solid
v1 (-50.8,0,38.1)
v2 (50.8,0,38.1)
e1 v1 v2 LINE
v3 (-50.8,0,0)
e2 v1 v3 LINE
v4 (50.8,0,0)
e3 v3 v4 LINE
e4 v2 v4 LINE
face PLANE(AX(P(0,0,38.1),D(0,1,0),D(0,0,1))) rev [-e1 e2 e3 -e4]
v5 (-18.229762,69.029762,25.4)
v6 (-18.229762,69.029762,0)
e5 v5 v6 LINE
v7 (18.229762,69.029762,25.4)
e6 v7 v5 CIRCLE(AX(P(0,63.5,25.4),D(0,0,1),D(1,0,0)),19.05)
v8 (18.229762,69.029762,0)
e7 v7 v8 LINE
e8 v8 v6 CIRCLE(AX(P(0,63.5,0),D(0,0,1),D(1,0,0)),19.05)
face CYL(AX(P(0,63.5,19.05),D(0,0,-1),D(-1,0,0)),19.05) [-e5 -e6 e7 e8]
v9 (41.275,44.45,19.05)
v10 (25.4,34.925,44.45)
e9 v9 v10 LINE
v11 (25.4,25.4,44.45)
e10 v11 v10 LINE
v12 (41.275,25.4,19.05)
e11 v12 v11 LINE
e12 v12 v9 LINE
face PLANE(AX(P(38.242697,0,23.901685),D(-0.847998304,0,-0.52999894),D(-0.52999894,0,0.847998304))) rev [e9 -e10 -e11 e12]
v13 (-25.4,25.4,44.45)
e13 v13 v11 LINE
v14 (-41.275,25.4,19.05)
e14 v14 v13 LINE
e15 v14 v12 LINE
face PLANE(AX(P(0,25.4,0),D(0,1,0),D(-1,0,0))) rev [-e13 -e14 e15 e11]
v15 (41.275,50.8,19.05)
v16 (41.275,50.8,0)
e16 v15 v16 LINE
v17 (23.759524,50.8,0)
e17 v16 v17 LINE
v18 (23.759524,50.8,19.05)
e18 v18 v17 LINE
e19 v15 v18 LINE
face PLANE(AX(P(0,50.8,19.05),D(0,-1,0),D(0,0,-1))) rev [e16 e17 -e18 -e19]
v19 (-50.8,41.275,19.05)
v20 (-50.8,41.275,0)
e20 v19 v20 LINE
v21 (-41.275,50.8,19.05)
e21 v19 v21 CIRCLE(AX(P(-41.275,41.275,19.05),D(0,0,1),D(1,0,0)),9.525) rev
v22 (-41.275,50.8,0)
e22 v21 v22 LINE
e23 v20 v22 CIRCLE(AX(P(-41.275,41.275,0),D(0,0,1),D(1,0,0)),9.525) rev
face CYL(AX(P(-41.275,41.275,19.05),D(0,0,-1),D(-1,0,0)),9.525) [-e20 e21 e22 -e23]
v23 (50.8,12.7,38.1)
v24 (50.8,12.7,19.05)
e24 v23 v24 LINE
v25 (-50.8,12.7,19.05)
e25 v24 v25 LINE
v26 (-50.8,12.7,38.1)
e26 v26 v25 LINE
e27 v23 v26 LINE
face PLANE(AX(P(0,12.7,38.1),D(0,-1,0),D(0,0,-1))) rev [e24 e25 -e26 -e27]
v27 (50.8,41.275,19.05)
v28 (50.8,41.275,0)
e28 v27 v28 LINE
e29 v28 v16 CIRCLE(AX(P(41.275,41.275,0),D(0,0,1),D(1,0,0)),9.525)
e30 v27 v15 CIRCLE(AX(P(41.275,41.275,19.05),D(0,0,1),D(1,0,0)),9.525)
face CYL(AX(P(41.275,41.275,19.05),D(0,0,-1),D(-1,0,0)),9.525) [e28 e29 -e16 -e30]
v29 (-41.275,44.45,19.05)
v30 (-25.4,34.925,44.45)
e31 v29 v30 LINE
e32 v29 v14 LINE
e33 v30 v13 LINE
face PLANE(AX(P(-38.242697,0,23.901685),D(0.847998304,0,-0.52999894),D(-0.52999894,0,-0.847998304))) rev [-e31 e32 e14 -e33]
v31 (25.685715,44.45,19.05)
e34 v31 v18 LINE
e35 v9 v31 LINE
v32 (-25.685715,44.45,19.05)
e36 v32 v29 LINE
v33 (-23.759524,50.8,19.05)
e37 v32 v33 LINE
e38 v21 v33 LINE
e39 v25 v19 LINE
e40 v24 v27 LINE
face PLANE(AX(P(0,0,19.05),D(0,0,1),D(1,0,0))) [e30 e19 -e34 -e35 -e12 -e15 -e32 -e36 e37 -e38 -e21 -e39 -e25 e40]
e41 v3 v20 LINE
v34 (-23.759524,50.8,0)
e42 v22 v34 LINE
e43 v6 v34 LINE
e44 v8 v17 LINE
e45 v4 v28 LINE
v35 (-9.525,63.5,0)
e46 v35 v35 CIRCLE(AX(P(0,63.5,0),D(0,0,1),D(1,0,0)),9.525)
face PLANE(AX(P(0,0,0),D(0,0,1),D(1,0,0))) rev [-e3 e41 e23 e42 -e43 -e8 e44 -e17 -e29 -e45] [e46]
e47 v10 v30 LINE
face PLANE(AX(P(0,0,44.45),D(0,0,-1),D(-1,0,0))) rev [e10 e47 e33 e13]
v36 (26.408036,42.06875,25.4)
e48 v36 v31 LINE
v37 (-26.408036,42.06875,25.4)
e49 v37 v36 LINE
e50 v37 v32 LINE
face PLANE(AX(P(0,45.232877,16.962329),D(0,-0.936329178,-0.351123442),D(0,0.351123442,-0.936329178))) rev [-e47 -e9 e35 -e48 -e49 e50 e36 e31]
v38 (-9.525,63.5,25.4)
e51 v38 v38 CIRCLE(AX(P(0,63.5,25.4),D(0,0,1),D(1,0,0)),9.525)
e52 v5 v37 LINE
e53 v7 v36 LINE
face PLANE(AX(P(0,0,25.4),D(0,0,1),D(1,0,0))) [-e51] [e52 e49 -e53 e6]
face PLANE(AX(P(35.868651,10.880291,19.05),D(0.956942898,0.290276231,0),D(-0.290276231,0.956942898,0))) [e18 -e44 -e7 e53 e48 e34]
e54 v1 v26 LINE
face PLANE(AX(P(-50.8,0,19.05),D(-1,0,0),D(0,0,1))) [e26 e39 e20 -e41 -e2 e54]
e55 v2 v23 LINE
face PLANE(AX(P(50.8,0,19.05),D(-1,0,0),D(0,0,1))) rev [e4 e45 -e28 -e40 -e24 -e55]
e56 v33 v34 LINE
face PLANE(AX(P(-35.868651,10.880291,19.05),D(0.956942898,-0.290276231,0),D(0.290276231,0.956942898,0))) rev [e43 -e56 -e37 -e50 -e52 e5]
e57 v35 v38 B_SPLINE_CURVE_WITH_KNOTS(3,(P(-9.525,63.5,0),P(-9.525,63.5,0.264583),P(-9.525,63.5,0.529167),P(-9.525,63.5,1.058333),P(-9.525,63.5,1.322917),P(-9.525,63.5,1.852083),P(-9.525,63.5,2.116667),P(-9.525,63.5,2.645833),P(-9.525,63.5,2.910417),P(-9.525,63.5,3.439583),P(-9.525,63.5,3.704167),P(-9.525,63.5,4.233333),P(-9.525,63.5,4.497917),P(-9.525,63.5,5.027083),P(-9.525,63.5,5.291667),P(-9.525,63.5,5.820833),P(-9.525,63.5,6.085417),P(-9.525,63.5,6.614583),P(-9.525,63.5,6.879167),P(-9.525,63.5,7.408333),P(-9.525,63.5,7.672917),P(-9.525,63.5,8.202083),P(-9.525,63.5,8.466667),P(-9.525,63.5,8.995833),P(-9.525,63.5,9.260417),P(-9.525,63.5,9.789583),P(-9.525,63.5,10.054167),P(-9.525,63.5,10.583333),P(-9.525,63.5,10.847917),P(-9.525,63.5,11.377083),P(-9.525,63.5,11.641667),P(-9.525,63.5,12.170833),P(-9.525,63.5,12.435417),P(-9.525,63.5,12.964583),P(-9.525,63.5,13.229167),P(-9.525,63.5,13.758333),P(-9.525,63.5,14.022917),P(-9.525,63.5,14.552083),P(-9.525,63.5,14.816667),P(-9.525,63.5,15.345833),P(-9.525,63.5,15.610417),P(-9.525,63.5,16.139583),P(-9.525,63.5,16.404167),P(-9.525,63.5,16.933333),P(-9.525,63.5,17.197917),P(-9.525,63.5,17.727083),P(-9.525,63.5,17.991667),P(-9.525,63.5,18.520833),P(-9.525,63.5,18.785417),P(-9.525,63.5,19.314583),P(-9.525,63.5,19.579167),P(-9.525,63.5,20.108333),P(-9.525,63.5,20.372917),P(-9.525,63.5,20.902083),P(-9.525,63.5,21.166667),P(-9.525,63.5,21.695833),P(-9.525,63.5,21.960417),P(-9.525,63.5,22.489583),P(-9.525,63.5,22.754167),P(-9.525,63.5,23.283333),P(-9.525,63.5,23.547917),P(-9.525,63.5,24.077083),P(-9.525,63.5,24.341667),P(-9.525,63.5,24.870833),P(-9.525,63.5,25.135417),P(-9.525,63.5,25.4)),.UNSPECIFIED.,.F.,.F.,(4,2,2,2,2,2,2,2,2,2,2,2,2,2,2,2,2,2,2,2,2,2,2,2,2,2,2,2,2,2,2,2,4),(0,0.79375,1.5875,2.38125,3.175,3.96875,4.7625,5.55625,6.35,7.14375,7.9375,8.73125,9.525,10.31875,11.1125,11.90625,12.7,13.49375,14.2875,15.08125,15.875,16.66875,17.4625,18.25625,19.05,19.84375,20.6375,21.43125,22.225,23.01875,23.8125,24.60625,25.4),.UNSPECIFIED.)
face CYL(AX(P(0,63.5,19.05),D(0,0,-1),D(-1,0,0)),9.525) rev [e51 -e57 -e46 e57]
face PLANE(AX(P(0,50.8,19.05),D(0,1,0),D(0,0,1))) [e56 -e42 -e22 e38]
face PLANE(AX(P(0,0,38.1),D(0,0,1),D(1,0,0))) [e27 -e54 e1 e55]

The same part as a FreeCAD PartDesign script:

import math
import FreeCAD as App
import Part
import Sketcher
from FreeCAD import Vector
Q = App.Units.Quantity


def add_polygon(sketch, points):
    """Adds a closed chain of lines whose ends are joined by coincident constraints."""
    first, n = sketch.GeometryCount, len(points)
    for a, b in zip(points, points[1:] + points[:1]):
        sketch.addGeometry(Part.LineSegment(App.Vector(*a, 0), App.Vector(*b, 0)), False)
    for i in range(n):
        sketch.addConstraint(Sketcher.Constraint("Coincident", first + i, 2, first + (i + 1) % n, 1))

doc = App.newDocument("Part")
body = doc.addObject("PartDesign::Body", "Body")

# Sketch on XY plane
sketch1 = body.newObject("Sketcher::SketchObject", "Sketch")
sketch1.AttachmentSupport = (doc.getObject("XY_Plane"), [""])
sketch1.MapMode = "FlatFace"
sketch1.addGeometry(Part.ArcOfCircle(Part.Circle(Vector(0, 63.5, 0), Vector(0, 0, 1), 19.05), math.radians(16.874494), math.radians(163.125506)), False)
sketch1.addGeometry(Part.LineSegment(Vector(-18.229762, 69.029762, 0), Vector(-23.759524, 50.8, 0)), False)
sketch1.addGeometry(Part.LineSegment(Vector(-23.759524, 50.8, 0), Vector(-41.275, 50.8, 0)), False)
sketch1.addGeometry(Part.ArcOfCircle(Part.Circle(Vector(-41.275, 41.275, 0), Vector(0, 0, 1), 9.525), math.radians(90), math.radians(180)), False)
sketch1.addGeometry(Part.LineSegment(Vector(-50.8, 41.275, 0), Vector(-50.8, 12.7, 0)), False)
sketch1.addGeometry(Part.LineSegment(Vector(-50.8, 12.7, 0), Vector(50.8, 12.7, 0)), False)
sketch1.addGeometry(Part.LineSegment(Vector(50.8, 12.7, 0), Vector(50.8, 41.275, 0)), False)
sketch1.addGeometry(Part.ArcOfCircle(Part.Circle(Vector(41.275, 41.275, 0), Vector(0, 0, 1), 9.525), math.radians(0), math.radians(90)), False)
sketch1.addGeometry(Part.LineSegment(Vector(41.275, 50.8, 0), Vector(23.759524, 50.8, 0)), False)
sketch1.addGeometry(Part.LineSegment(Vector(23.759524, 50.8, 0), Vector(18.229762, 69.029762, 0)), False)
sketch1.addGeometry(Part.Circle(Vector(0, 63.5, 0), Vector(0, 0, 1), 9.525), False)
sketch1.addConstraint(Sketcher.Constraint("Tangent", 0, 2, 1, 1))
sketch1.addConstraint(Sketcher.Constraint("Coincident", 1, 2, 2, 1))
sketch1.addConstraint(Sketcher.Constraint("Tangent", 2, 2, 3, 1))
sketch1.addConstraint(Sketcher.Constraint("Tangent", 3, 2, 4, 1))
sketch1.addConstraint(Sketcher.Constraint("Coincident", 4, 2, 5, 1))
sketch1.addConstraint(Sketcher.Constraint("Coincident", 5, 2, 6, 1))
sketch1.addConstraint(Sketcher.Constraint("Tangent", 6, 2, 7, 1))
sketch1.addConstraint(Sketcher.Constraint("Tangent", 7, 2, 8, 1))
sketch1.addConstraint(Sketcher.Constraint("Coincident", 8, 2, 9, 1))
sketch1.addConstraint(Sketcher.Constraint("Tangent", 9, 2, 0, 1))
sketch1.addConstraint(Sketcher.Constraint("Horizontal", 2))
sketch1.addConstraint(Sketcher.Constraint("Vertical", 4))
sketch1.addConstraint(Sketcher.Constraint("Horizontal", 5))
sketch1.addConstraint(Sketcher.Constraint("Vertical", 6))
sketch1.addConstraint(Sketcher.Constraint("Horizontal", 8))
sketch1.addConstraint(Sketcher.Constraint("Coincident", 10, 3, 0, 3))
sketch1.addConstraint(Sketcher.Constraint("Equal", 3, 7))
sketch1.addConstraint(Sketcher.Constraint("Equal", 7, 10))
sketch1.addConstraint(Sketcher.Constraint("Symmetric", 3, 3, 7, 3, -2))
sketch1.addConstraint(Sketcher.Constraint("Symmetric", 0, 2, 9, 2, -2))
sketch1.addConstraint(Sketcher.Constraint("Diameter", 10, Q("0.75 in")))
sketch1.addConstraint(Sketcher.Constraint("DistanceX", 5, 1, 5, 2, Q("4 in")))
sketch1.addConstraint(Sketcher.Constraint("Radius", 0, Q("0.75 in")))
sketch1.addConstraint(Sketcher.Constraint("DistanceY", -1, 1, 1, 2, Q("2 in")))
sketch1.addConstraint(Sketcher.Constraint("DistanceY", 5, 2, 0, 3, Q("2 in")))
sketch1.addConstraint(Sketcher.Constraint("DistanceY", -1, 1, 0, 3, Q("2.5 in")))
sketch1.addConstraint(Sketcher.Constraint("Distance", 1, Q("0.75 in")))
pad1 = body.newObject("PartDesign::Pad", "Pad")
pad1.Profile = sketch1
pad1.Length = Q("0.75 in")

# Sketch on XY plane
sketch2 = body.newObject("Sketcher::SketchObject", "Sketch001")
sketch2.AttachmentSupport = (doc.getObject("XY_Plane"), [""])
sketch2.MapMode = "FlatFace"
sketch2.addGeometry(Part.LineSegment(Vector(-18.229762, 69.029762, 0), Vector(-23.759524, 50.8, 0)), False)
sketch2.addGeometry(Part.LineSegment(Vector(-23.759524, 50.8, 0), Vector(-28.575, 34.925, 0)), False)
sketch2.addGeometry(Part.LineSegment(Vector(-28.575, 34.925, 0), Vector(28.575, 34.925, 0)), False)
sketch2.addGeometry(Part.LineSegment(Vector(28.575, 34.925, 0), Vector(23.759524, 50.8, 0)), False)
sketch2.addGeometry(Part.LineSegment(Vector(23.759524, 50.8, 0), Vector(18.229762, 69.029762, 0)), False)
sketch2.addGeometry(Part.ArcOfCircle(Part.Circle(Vector(0, 63.5, 0), Vector(0, 0, 1), 19.05), math.radians(16.874494), math.radians(163.125506)), False)
sketch2.addGeometry(Part.Circle(Vector(0, 63.5, 0), Vector(0, 0, 1), 9.525), False)
sketch2.addConstraint(Sketcher.Constraint("Coincident", 0, 2, 1, 1))
sketch2.addConstraint(Sketcher.Constraint("Coincident", 1, 2, 2, 1))
sketch2.addConstraint(Sketcher.Constraint("Coincident", 2, 2, 3, 1))
sketch2.addConstraint(Sketcher.Constraint("Coincident", 3, 2, 4, 1))
sketch2.addConstraint(Sketcher.Constraint("Tangent", 4, 2, 5, 1))
sketch2.addConstraint(Sketcher.Constraint("Tangent", 5, 2, 0, 1))
sketch2.addConstraint(Sketcher.Constraint("Horizontal", 2))
sketch2.addConstraint(Sketcher.Constraint("Coincident", 6, 3, 5, 3))
sketch2.addConstraint(Sketcher.Constraint("Symmetric", 0, 2, 3, 2, -2))
sketch2.addConstraint(Sketcher.Constraint("PointOnObject", 5, 3, -2))
sketch2.addConstraint(Sketcher.Constraint("Parallel", 0, 1))
sketch2.addConstraint(Sketcher.Constraint("Parallel", 3, 4))
sketch2.addConstraint(Sketcher.Constraint("Diameter", 6, Q("0.75 in")))
sketch2.addConstraint(Sketcher.Constraint("Radius", 5, Q("0.75 in")))
sketch2.addConstraint(Sketcher.Constraint("DistanceY", -1, 1, 0, 2, Q("2 in")))
sketch2.addConstraint(Sketcher.Constraint("DistanceX", 2, 1, 2, 2, Q("2.25 in")))
sketch2.addConstraint(Sketcher.Constraint("DistanceY", -1, 1, 5, 3, Q("2.5 in")))
sketch2.addConstraint(Sketcher.Constraint("Distance", 0, Q("0.75 in")))
pad2 = body.newObject("PartDesign::Pad", "Pad001")
pad2.Profile = sketch2
pad2.Length = Q("1 in")

# Sketch on XY plane
sketch3 = body.newObject("Sketcher::SketchObject", "Sketch002")
sketch3.AttachmentSupport = (doc.getObject("XY_Plane"), [""])
sketch3.MapMode = "FlatFace"
add_polygon(sketch3, [(-50.8, 12.7), (-50.8, 0), (50.8, 0), (50.8, 12.7)])  # lines 0-3
sketch3.addConstraint(Sketcher.Constraint("Vertical", 0))
sketch3.addConstraint(Sketcher.Constraint("Horizontal", 1))
sketch3.addConstraint(Sketcher.Constraint("Vertical", 2))
sketch3.addConstraint(Sketcher.Constraint("Horizontal", 3))
sketch3.addConstraint(Sketcher.Constraint("Symmetric", 0, 2, 1, 2, -1, 1))
sketch3.addConstraint(Sketcher.Constraint("DistanceX", 1, 1, 1, 2, Q("4 in")))
sketch3.addConstraint(Sketcher.Constraint("DistanceY", 0, 2, 0, 1, Q("0.5 in")))
pad3 = body.newObject("PartDesign::Pad", "Pad002")
pad3.Profile = sketch3
pad3.Length = Q("1.5 in")

# Sketch on XY plane
sketch4 = body.newObject("Sketcher::SketchObject", "Sketch003")
sketch4.AttachmentSupport = (doc.getObject("XY_Plane"), [""])
sketch4.MapMode = "FlatFace"
sketch4.AttachmentOffset = App.Placement(Vector(0, 0, 0.75 * 25.4), App.Rotation())
add_polygon(sketch4, [(-41.275, 44.45), (-41.275, 25.4), (41.275, 25.4), (41.275, 44.45)])  # lines 0-3
sketch4.addConstraint(Sketcher.Constraint("Vertical", 0))
sketch4.addConstraint(Sketcher.Constraint("Horizontal", 1))
sketch4.addConstraint(Sketcher.Constraint("Vertical", 2))
sketch4.addConstraint(Sketcher.Constraint("Horizontal", 3))
sketch4.addConstraint(Sketcher.Constraint("DistanceY", -1, 1, 0, 2, Q("1 in")))
sketch4.addConstraint(Sketcher.Constraint("DistanceX", 1, 1, 1, 2, Q("3.25 in")))
sketch4.addConstraint(Sketcher.Constraint("DistanceY", 0, 2, 0, 1, Q("0.75 in")))
sketch4.addConstraint(Sketcher.Constraint("DistanceX", 0, 2, -1, 1, Q("1.625 in")))

# Sketch on XY plane
sketch5 = body.newObject("Sketcher::SketchObject", "Sketch004")
sketch5.AttachmentSupport = (doc.getObject("XY_Plane"), [""])
sketch5.MapMode = "FlatFace"
sketch5.AttachmentOffset = App.Placement(Vector(0, 0, 1.75 * 25.4), App.Rotation())
add_polygon(sketch5, [(-25.4, 34.925), (-25.4, 25.4), (25.4, 25.4), (25.4, 34.925)])  # lines 0-3
sketch5.addConstraint(Sketcher.Constraint("Vertical", 0))
sketch5.addConstraint(Sketcher.Constraint("Horizontal", 1))
sketch5.addConstraint(Sketcher.Constraint("Vertical", 2))
sketch5.addConstraint(Sketcher.Constraint("Horizontal", 3))
sketch5.addConstraint(Sketcher.Constraint("DistanceX", 1, 1, 1, 2, Q("2 in")))
sketch5.addConstraint(Sketcher.Constraint("DistanceX", 0, 2, -1, 1, Q("1 in")))
sketch5.addConstraint(Sketcher.Constraint("DistanceY", -1, 1, 0, 2, Q("1 in")))
sketch5.addConstraint(Sketcher.Constraint("DistanceY", 0, 2, 0, 1, Q("0.375 in")))

additiveloft = body.newObject("PartDesign::AdditiveLoft", "AdditiveLoft")
additiveloft.Profile = sketch4
additiveloft.Sections = [sketch5]

doc.recompute()
